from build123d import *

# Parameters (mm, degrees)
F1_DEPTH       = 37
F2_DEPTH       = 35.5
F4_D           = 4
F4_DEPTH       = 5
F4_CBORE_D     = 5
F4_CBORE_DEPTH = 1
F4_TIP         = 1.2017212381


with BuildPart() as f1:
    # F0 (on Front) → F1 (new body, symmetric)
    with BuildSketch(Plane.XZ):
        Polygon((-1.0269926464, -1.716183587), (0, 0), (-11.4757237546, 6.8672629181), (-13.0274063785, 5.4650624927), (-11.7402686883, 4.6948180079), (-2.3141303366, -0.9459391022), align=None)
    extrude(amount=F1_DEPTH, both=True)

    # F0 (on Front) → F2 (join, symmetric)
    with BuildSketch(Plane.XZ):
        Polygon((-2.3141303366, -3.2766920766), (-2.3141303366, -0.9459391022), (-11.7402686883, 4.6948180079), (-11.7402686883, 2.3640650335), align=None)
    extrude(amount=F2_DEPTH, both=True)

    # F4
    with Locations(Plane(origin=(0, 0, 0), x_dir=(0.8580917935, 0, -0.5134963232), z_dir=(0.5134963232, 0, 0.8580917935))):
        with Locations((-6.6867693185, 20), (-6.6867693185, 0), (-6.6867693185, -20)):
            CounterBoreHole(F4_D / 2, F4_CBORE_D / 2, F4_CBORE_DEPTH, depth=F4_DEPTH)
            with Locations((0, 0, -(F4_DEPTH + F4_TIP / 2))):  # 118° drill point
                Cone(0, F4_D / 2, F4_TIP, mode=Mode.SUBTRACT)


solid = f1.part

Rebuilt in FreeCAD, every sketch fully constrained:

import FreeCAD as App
import Part
import Sketcher
from FreeCAD import Vector
Q = App.Units.Quantity


def add_polygon(sketch, points):
    """Adds a closed chain of lines whose ends are joined by coincident constraints."""
    first, n = sketch.GeometryCount, len(points)
    for a, b in zip(points, points[1:] + points[:1]):
        sketch.addGeometry(Part.LineSegment(App.Vector(*a, 0), App.Vector(*b, 0)), False)
    for i in range(n):
        sketch.addConstraint(Sketcher.Constraint("Coincident", first + i, 2, first + (i + 1) % n, 1))

doc = App.newDocument("Part")
body = doc.addObject("PartDesign::Body", "Body")

sketch1 = body.newObject("Sketcher::SketchObject", "Sketch")
sketch1.AttachmentSupport = (doc.getObject("XZ_Plane"), [""])
sketch1.MapMode = "FlatFace"
add_polygon(sketch1, [(-1, -1.7), (0, 0), (-11.5, 6.9), (-13, 5.5), (-11.7, 4.7), (-2.3, -0.9)])
sketch1.addConstraint([
    Sketcher.Constraint("Coincident", 0, 2, -1, 1),
    Sketcher.Constraint("Perpendicular", 0, 1),
    Sketcher.Constraint("Parallel", 1, 3),
    Sketcher.Constraint("Parallel", 3, 4),
    Sketcher.Constraint("Parallel", 4, 5),
    Sketcher.Constraint("Equal", 3, 5),
    Sketcher.Constraint("Distance", 0, Q("2 mm")),
    Sketcher.Constraint("Distance", 3, Q("1.5 mm")),
    Sketcher.Constraint("Distance", 4, Q("10.985 mm")),
    Sketcher.Constraint("DistanceY", 4, 2, 2, 2, Q("6.411002 mm")),
    Sketcher.Constraint("DistanceY", 2, 2, 1, 2, Q("1.4022 mm")),
])
pad1 = body.newObject("PartDesign::Pad", "Pad")
pad1.Profile = sketch1
pad1.Length = 74
pad1.Midplane = True

sketch2 = body.newObject("Sketcher::SketchObject", "Sketch001")
sketch2.AttachmentSupport = (doc.getObject("XZ_Plane"), [""])
sketch2.MapMode = "FlatFace"
add_polygon(sketch2, [(-2.3, -3.3), (-2.3, -0.9), (-11.7, 4.7), (-11.7, 2.4)])
sketch2.addConstraint([
    Sketcher.Constraint("Vertical", 0),
    Sketcher.Constraint("Vertical", 2),
    Sketcher.Constraint("Parallel", 1, 3),
    Sketcher.Constraint("Distance", 1, Q("10.985 mm")),
    Sketcher.Constraint("DistanceY", 0, 1, 0, 2, Q("2.330753 mm")),
    Sketcher.Constraint("DistanceX", 0, 2, -1, 1, Q("2.31413 mm")),
    Sketcher.Constraint("DistanceY", 0, 2, -1, 1, Q("0.945939 mm")),
    Sketcher.Constraint("DistanceX", 1, 2, -1, 1, Q("11.740269 mm")),
])
pad2 = body.newObject("PartDesign::Pad", "Pad001")
pad2.Profile = sketch2
pad2.Length = 71
pad2.Midplane = True

sketch3 = body.newObject("Sketcher::SketchObject", "Sketch002")
sketch3.Placement = App.Placement(Vector(0, 0, 0), App.Rotation(Vector(0.858091793, 0, -0.513496323), Vector(0, 0.999999999, 0), Vector(0.513496323, 0, 0.858091793), "ZXY"))
sketch3.addGeometry([
    Part.Circle(Vector(-6.7, 20, 0), Vector(0, 0, 1), 2),
    Part.Circle(Vector(-6.7, 0, 0), Vector(0, 0, 1), 2),
    Part.Circle(Vector(-6.7, -20, 0), Vector(0, 0, 1), 2),
], False)
sketch3.addConstraint([
    Sketcher.Constraint("Equal", 0, 1),
    Sketcher.Constraint("Equal", 1, 2),
    Sketcher.Constraint("Symmetric", 0, 3, 2, 3, -1),
    Sketcher.Constraint("PointOnObject", 1, 3, -1),
    Sketcher.Constraint("Vertical", 0, 3, 1, 3),
    Sketcher.Constraint("Diameter", 0, Q("4 mm")),
    Sketcher.Constraint("DistanceY", -1, 1, 0, 3, Q("20 mm")),
    Sketcher.Constraint("DistanceX", 0, 3, -1, 1, Q("6.686769 mm")),
])
doc.recompute()
hole = body.newObject("PartDesign::Hole", "Hole")
hole.Profile = sketch3
hole.ThreadType = "None"
hole.Diameter = 4
hole.DepthType = "Dimension"
hole.Depth = 5
hole.DrillPoint = "Angled"
hole.DrillPointAngle = 118
hole.HoleCutType = "Counterbore"
hole.HoleCutDiameter = 5
hole.HoleCutDepth = 1

doc.recompute()
